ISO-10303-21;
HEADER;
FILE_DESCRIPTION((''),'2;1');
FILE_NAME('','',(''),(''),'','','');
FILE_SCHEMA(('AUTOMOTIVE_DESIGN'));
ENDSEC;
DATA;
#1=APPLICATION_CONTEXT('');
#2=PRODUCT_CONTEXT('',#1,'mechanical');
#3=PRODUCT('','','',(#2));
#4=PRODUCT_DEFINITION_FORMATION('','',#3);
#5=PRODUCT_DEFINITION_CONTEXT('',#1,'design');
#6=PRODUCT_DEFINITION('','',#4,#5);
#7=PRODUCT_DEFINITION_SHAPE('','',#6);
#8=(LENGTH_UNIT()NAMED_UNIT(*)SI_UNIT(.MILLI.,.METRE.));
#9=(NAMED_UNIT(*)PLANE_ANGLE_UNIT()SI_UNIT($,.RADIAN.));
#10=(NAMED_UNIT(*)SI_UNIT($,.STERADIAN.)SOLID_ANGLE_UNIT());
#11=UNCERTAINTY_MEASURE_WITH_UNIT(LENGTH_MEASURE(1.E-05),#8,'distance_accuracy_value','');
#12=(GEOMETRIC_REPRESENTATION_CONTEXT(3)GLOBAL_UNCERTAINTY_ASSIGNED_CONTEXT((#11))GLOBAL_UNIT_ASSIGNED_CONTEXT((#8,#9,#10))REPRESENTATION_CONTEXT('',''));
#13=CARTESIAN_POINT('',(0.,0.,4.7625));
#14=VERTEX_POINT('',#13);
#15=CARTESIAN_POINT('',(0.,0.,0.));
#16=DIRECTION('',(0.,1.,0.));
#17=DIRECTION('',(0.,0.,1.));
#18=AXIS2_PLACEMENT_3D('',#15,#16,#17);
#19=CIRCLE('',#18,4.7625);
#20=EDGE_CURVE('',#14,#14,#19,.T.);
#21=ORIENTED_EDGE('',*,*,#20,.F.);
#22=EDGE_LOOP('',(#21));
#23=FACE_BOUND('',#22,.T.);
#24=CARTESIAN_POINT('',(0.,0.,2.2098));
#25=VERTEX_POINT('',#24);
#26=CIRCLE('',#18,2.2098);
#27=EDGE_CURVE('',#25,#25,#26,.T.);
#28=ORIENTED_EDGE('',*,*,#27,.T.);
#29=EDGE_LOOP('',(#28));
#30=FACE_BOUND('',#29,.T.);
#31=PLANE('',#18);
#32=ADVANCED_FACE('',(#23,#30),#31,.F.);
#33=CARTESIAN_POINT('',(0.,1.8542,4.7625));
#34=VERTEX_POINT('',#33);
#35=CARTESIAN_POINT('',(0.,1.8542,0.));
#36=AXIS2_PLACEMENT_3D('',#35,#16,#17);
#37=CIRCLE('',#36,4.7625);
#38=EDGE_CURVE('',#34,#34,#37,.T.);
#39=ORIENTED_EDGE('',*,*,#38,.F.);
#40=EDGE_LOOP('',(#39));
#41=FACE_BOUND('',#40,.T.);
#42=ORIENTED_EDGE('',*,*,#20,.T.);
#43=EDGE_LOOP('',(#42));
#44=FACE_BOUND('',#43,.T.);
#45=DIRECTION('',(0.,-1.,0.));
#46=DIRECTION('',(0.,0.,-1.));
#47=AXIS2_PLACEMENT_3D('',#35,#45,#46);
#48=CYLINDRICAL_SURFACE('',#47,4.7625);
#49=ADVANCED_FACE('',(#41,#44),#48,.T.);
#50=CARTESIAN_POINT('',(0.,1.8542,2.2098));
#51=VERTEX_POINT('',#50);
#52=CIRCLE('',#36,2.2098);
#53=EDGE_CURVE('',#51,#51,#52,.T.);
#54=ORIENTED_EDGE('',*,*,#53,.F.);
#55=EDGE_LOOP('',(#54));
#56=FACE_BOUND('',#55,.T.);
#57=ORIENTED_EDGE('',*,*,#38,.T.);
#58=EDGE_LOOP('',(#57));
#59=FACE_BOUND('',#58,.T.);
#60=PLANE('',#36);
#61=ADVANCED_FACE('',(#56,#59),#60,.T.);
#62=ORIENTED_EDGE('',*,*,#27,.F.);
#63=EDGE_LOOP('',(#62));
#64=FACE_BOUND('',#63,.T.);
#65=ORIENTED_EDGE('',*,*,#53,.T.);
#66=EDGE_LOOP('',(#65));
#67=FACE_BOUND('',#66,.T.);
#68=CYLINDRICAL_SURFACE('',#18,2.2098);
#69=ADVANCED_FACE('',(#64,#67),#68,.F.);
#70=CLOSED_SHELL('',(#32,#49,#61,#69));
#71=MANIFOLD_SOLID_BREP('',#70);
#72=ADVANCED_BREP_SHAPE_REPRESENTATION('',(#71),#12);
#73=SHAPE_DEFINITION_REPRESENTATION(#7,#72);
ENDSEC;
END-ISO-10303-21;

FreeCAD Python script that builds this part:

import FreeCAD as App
import Part
import Sketcher

V = App.Vector
Q = App.Units.Quantity

doc = App.newDocument("Part")
body = doc.addObject("PartDesign::Body", "Body")

# Sketch on XZ plane
sketch1 = body.newObject("Sketcher::SketchObject", "Sketch")
sketch1.AttachmentSupport = (doc.getObject("XZ_Plane"), [""])
sketch1.MapMode = "FlatFace"
sketch1.addGeometry(Part.Circle(V(0, 0, 0), V(0, 0, 1), 4.8), False)
sketch1.addConstraint([
    Sketcher.Constraint("Coincident", 0, 3, -1, 1),
    Sketcher.Constraint("Diameter", 0, Q("0.375 in")),
])
pad1 = body.newObject("PartDesign::Pad", "Pad")
pad1.Profile = sketch1
pad1.Length = Q("0.073 in")
pad1.Reversed = True

# Sketch on XZ plane
sketch2 = body.newObject("Sketcher::SketchObject", "Sketch001")
sketch2.AttachmentSupport = (doc.getObject("XZ_Plane"), [""])
sketch2.MapMode = "FlatFace"
sketch2.AttachmentOffset = App.Placement(V(0, 0, -0.073 * 25.4), App.Rotation())
sketch2.addGeometry(Part.Circle(V(0, 0, 0), V(0, 0, 1), 2.2), False)
sketch2.addConstraint([
    Sketcher.Constraint("Coincident", 0, 3, -1, 1),
    Sketcher.Constraint("Diameter", 0, Q("0.174 in")),
])
pocket1 = body.newObject("PartDesign::Pocket", "Pocket")
pocket1.Profile = sketch2
pocket1.Type = "ThroughAll"
pocket1.Reversed = True

doc.recompute()
